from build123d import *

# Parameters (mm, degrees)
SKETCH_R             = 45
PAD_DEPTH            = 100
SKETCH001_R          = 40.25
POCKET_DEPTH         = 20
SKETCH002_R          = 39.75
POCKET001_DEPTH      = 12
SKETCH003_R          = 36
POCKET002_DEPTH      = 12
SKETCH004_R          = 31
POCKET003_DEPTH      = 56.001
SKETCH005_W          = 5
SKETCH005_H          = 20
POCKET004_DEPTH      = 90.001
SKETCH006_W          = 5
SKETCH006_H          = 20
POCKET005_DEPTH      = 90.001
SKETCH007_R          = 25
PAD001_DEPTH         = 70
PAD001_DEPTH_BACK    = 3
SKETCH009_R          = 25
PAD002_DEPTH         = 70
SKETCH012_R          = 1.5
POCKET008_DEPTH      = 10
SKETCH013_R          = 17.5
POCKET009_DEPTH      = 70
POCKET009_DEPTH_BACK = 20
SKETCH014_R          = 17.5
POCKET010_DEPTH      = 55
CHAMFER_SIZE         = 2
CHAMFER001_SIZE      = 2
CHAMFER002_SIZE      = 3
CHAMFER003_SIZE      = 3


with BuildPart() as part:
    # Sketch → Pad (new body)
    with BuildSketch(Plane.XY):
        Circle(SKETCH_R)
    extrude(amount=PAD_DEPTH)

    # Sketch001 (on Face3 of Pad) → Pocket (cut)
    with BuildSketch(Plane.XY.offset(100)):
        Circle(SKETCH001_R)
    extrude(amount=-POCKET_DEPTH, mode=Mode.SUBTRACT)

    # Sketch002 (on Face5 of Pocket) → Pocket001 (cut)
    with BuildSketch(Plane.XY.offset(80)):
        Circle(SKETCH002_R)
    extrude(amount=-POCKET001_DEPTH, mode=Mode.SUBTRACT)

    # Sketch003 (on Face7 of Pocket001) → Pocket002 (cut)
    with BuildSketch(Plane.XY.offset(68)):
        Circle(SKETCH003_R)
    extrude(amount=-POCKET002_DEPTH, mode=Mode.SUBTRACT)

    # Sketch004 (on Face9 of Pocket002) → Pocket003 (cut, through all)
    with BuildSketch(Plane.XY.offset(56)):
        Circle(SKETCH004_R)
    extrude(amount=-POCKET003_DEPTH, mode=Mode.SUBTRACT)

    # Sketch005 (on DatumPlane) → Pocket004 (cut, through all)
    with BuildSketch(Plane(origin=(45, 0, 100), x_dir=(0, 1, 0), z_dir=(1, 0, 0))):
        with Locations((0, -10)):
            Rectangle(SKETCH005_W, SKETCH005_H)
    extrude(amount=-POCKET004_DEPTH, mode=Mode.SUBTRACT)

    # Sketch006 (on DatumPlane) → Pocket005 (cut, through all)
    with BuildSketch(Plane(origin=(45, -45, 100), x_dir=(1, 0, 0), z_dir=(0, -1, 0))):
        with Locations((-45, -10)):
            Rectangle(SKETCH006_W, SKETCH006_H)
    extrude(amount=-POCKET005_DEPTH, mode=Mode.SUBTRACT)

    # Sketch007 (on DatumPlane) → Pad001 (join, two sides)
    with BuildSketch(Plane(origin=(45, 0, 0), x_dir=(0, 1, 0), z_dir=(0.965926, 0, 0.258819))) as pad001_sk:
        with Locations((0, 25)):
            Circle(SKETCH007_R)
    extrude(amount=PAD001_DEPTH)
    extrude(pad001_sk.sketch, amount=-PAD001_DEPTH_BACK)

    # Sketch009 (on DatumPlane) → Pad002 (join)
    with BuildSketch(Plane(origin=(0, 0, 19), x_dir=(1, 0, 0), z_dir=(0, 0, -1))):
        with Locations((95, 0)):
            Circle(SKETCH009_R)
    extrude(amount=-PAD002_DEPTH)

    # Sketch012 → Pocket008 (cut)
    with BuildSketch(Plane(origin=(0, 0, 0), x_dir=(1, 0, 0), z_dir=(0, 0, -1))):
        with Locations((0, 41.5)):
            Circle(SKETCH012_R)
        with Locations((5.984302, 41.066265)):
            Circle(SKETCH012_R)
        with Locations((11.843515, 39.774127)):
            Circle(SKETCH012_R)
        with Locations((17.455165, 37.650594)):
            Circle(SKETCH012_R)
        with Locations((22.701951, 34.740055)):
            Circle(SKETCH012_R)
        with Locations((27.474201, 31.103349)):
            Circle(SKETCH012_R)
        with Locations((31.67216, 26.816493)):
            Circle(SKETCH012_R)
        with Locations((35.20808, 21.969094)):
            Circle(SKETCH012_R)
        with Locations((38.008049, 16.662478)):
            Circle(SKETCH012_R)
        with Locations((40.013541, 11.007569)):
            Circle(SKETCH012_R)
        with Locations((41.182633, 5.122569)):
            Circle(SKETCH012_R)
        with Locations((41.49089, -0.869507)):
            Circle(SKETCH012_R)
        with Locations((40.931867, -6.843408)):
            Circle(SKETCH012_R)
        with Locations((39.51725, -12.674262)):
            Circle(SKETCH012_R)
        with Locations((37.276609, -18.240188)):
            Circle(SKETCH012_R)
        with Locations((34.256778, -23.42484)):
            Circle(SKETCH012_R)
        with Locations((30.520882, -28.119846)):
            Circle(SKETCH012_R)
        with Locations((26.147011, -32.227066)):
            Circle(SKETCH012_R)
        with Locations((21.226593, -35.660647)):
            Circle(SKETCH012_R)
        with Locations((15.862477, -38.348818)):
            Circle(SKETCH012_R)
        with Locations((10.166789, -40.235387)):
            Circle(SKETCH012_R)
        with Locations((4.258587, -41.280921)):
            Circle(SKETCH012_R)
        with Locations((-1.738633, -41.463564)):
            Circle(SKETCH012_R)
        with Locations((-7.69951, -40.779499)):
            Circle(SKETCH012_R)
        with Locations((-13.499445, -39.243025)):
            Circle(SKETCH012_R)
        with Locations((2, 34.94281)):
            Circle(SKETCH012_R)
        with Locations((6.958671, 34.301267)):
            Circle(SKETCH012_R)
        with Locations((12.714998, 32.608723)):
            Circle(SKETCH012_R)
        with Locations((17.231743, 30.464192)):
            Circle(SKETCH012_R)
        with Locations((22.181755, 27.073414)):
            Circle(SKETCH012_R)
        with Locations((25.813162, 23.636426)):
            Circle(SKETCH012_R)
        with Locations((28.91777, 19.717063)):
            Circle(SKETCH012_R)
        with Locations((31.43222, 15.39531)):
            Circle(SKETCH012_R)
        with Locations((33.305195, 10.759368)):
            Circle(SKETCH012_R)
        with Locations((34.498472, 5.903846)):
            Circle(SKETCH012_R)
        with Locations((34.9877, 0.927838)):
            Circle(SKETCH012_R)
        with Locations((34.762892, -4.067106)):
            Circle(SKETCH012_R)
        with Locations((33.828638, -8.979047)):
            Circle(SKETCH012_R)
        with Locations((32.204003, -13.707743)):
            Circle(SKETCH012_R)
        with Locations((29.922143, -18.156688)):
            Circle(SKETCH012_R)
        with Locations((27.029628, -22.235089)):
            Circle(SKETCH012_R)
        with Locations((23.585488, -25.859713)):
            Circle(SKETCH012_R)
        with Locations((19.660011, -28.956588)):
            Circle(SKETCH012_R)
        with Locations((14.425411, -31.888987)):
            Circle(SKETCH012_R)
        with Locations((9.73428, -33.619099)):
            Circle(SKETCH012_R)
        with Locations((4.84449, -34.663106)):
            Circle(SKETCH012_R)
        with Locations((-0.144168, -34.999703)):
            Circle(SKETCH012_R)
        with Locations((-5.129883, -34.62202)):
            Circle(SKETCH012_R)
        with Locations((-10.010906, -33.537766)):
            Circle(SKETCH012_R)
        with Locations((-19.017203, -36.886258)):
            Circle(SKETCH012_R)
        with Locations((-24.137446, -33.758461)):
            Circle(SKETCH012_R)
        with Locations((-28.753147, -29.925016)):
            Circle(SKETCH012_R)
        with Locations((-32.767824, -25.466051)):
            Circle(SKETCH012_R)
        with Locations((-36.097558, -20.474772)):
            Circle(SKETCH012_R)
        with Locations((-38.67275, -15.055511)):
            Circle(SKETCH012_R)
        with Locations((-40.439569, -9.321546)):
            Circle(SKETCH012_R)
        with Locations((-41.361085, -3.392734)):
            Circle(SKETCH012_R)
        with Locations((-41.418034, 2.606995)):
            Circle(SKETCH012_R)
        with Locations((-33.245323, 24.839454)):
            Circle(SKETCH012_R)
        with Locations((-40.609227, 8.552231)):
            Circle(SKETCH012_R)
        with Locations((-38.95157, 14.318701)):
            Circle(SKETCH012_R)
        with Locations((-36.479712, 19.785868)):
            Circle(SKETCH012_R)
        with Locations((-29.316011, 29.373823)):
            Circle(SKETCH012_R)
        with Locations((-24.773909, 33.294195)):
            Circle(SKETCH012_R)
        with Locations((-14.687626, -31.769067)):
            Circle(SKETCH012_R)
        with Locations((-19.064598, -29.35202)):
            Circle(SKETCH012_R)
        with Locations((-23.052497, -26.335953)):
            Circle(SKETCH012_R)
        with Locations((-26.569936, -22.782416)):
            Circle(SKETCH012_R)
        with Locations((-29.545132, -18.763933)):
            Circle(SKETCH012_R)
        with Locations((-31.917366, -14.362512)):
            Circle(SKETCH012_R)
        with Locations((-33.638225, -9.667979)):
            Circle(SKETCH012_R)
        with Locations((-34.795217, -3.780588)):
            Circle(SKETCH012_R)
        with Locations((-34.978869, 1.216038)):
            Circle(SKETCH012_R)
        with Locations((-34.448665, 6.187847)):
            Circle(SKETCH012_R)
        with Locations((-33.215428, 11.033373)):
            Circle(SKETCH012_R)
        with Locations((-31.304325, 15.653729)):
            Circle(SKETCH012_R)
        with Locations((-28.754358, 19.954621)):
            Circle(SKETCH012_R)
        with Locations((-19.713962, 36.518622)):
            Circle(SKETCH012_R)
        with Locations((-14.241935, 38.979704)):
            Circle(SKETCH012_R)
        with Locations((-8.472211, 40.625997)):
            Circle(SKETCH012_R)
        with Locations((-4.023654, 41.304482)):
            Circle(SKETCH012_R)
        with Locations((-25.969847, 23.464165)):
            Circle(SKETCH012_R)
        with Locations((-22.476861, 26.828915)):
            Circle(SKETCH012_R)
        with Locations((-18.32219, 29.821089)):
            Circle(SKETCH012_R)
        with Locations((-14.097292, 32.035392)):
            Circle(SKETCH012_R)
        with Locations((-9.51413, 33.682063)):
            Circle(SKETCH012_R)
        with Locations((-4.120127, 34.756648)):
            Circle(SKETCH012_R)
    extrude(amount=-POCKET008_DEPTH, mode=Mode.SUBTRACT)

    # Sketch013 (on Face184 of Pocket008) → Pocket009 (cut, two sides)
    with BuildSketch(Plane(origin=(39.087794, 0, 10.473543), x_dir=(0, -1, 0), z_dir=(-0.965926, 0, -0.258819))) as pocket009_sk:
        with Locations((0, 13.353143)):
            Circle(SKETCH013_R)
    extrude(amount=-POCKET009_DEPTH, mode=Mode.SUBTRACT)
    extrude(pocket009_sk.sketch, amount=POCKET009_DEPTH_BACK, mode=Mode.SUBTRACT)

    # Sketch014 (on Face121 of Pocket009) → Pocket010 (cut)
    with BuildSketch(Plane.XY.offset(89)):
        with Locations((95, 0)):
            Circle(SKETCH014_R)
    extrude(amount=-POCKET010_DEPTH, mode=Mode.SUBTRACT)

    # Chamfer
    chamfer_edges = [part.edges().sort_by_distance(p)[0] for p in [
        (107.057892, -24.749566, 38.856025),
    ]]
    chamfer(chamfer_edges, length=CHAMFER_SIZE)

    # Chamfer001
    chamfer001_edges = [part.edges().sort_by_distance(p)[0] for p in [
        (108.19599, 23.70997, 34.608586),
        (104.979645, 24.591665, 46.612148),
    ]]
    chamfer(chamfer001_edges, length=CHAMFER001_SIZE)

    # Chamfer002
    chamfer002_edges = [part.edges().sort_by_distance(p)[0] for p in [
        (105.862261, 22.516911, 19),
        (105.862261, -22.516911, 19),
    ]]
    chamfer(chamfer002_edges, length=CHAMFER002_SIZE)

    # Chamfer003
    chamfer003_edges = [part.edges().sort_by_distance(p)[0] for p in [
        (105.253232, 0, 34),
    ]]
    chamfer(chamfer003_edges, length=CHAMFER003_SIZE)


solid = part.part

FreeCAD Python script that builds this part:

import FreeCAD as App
import Part
import Sketcher
from FreeCAD import Vector


def edges_at(feature, points):
    """Names of the edges that pass closest to the given points."""
    edges = feature.Shape.Edges
    near = lambda p: min(range(len(edges)), key=lambda i: edges[i].distToShape(Part.Vertex(*p))[0])
    return sorted({f"Edge{near(p) + 1}" for p in points})


def add_polygon(sketch, points):
    """Adds a closed chain of lines whose ends are joined by coincident constraints."""
    first, n = sketch.GeometryCount, len(points)
    for a, b in zip(points, points[1:] + points[:1]):
        sketch.addGeometry(Part.LineSegment(App.Vector(*a, 0), App.Vector(*b, 0)), False)
    for i in range(n):
        sketch.addConstraint(Sketcher.Constraint("Coincident", first + i, 2, first + (i + 1) % n, 1))

doc = App.newDocument("Part")
body = doc.addObject("PartDesign::Body", "Body")

# Sketch on XY plane
sketch1 = doc.addObject("Sketcher::SketchObject", "Sketch")
body.addObject(sketch1)
sketch1.AttachmentSupport = (doc.XY_Plane, [""])
sketch1.MapMode = "FlatFace"
sketch1.addGeometry(Part.Circle(Vector(0, 0, 0), Vector(0, 0, 1), 45), False)
sketch1.addConstraint(Sketcher.Constraint("Coincident", 0, 3, -1, 1))
sketch1.addConstraint(Sketcher.Constraint("Diameter", 0, 90.0))
pad1 = doc.addObject("PartDesign::Pad", "Pad")
body.addObject(pad1)
pad1.Profile = sketch1
pad1.Length = 100

# Sketch on XY plane
sketch2 = doc.addObject("Sketcher::SketchObject", "Sketch001")
body.addObject(sketch2)
sketch2.AttachmentSupport = (doc.XY_Plane, [""])
sketch2.MapMode = "FlatFace"
sketch2.AttachmentOffset = App.Placement(Vector(0, 0, 100), App.Rotation())
sketch2.addGeometry(Part.Circle(Vector(0, 0, 0), Vector(0, 0, 1), 40), False)
sketch2.addConstraint(Sketcher.Constraint("Coincident", 0, 3, -1, 1))
sketch2.addConstraint(Sketcher.Constraint("Diameter", 0, 80.5))
pocket1 = doc.addObject("PartDesign::Pocket", "Pocket")
body.addObject(pocket1)
pocket1.Profile = sketch2
pocket1.Length = 20

# Sketch on XY plane
sketch3 = doc.addObject("Sketcher::SketchObject", "Sketch002")
body.addObject(sketch3)
sketch3.AttachmentSupport = (doc.XY_Plane, [""])
sketch3.MapMode = "FlatFace"
sketch3.AttachmentOffset = App.Placement(Vector(0, 0, 80), App.Rotation())
sketch3.addGeometry(Part.Circle(Vector(0, 0, 0), Vector(0, 0, 1), 40), False)
sketch3.addConstraint(Sketcher.Constraint("Coincident", 0, 3, -1, 1))
sketch3.addConstraint(Sketcher.Constraint("Diameter", 0, 79.5))
pocket2 = doc.addObject("PartDesign::Pocket", "Pocket001")
body.addObject(pocket2)
pocket2.Profile = sketch3
pocket2.Length = 12

# Sketch on XY plane
sketch4 = doc.addObject("Sketcher::SketchObject", "Sketch003")
body.addObject(sketch4)
sketch4.AttachmentSupport = (doc.XY_Plane, [""])
sketch4.MapMode = "FlatFace"
sketch4.AttachmentOffset = App.Placement(Vector(0, 0, 68), App.Rotation())
sketch4.addGeometry(Part.Circle(Vector(0, 0, 0), Vector(0, 0, 1), 36), False)
sketch4.addConstraint(Sketcher.Constraint("Coincident", 0, 3, -1, 1))
sketch4.addConstraint(Sketcher.Constraint("Diameter", 0, 72.0))
pocket3 = doc.addObject("PartDesign::Pocket", "Pocket002")
body.addObject(pocket3)
pocket3.Profile = sketch4
pocket3.Length = 12

# Sketch on XY plane
sketch5 = doc.addObject("Sketcher::SketchObject", "Sketch004")
body.addObject(sketch5)
sketch5.AttachmentSupport = (doc.XY_Plane, [""])
sketch5.MapMode = "FlatFace"
sketch5.AttachmentOffset = App.Placement(Vector(0, 0, 56), App.Rotation())
sketch5.addGeometry(Part.Circle(Vector(0, 0, 0), Vector(0, 0, 1), 31), False)
sketch5.addConstraint(Sketcher.Constraint("Coincident", 0, 3, -1, 1))
sketch5.addConstraint(Sketcher.Constraint("Diameter", 0, 62.0))
pocket4 = doc.addObject("PartDesign::Pocket", "Pocket003")
body.addObject(pocket4)
pocket4.Profile = sketch5
pocket4.Type = "ThroughAll"

# Sketch on YZ plane
sketch6 = doc.addObject("Sketcher::SketchObject", "Sketch005")
body.addObject(sketch6)
sketch6.AttachmentSupport = (doc.YZ_Plane, [""])
sketch6.MapMode = "FlatFace"
sketch6.AttachmentOffset = App.Placement(Vector(0, 0, 45), App.Rotation())
add_polygon(sketch6, [(-2, 100), (-2, 80), (2, 80), (2, 100)])  # lines 0-3
sketch6.addConstraint(Sketcher.Constraint("Vertical", 0))
sketch6.addConstraint(Sketcher.Constraint("Horizontal", 1))
sketch6.addConstraint(Sketcher.Constraint("Vertical", 2))
sketch6.addConstraint(Sketcher.Constraint("Horizontal", 3))
sketch6.addConstraint(Sketcher.Constraint("DistanceX", 1, 1, 1, 2, 5.0))
sketch6.addConstraint(Sketcher.Constraint("DistanceY", 0, 2, 0, 1, 20.0))
sketch6.addConstraint(Sketcher.Constraint("DistanceY", -1, 1, 0, 2, 80.0))
sketch6.addConstraint(Sketcher.Constraint("DistanceX", 0, 2, -1, 1, 2.5))
pocket5 = doc.addObject("PartDesign::Pocket", "Pocket004")
body.addObject(pocket5)
pocket5.Profile = sketch6
pocket5.Type = "ThroughAll"

# Sketch on XZ plane
sketch7 = doc.addObject("Sketcher::SketchObject", "Sketch006")
body.addObject(sketch7)
sketch7.AttachmentSupport = (doc.XZ_Plane, [""])
sketch7.MapMode = "FlatFace"
sketch7.AttachmentOffset = App.Placement(Vector(0, 0, 45), App.Rotation())
add_polygon(sketch7, [(-2, 100), (-2, 80), (2, 80), (2, 100)])  # lines 0-3
sketch7.addConstraint(Sketcher.Constraint("Vertical", 0))
sketch7.addConstraint(Sketcher.Constraint("Horizontal", 1))
sketch7.addConstraint(Sketcher.Constraint("Vertical", 2))
sketch7.addConstraint(Sketcher.Constraint("Horizontal", 3))
sketch7.addConstraint(Sketcher.Constraint("DistanceX", 1, 1, 1, 2, 5.0))
sketch7.addConstraint(Sketcher.Constraint("DistanceY", 0, 2, 0, 1, 20.0))
sketch7.addConstraint(Sketcher.Constraint("DistanceY", -1, 1, 0, 2, 80.0))
sketch7.addConstraint(Sketcher.Constraint("DistanceX", 0, 2, -1, 1, 2.5))
pocket6 = doc.addObject("PartDesign::Pocket", "Pocket005")
body.addObject(pocket6)
pocket6.Profile = sketch7
pocket6.Type = "ThroughAll"

# Sketch on an angled plane
sketch8 = doc.addObject("Sketcher::SketchObject", "Sketch007")
body.addObject(sketch8)
sketch8.Placement = App.Placement(Vector(45, 0, 0), App.Rotation(Vector(0, 1, 0), Vector(-0.25881896, 0, 0.965925849), Vector(0.965925849, 0, 0.25881896), "ZXY"))
sketch8.addGeometry(Part.Circle(Vector(0, 25, 0), Vector(0, 0, 1), 25), False)
sketch8.addConstraint(Sketcher.Constraint("PointOnObject", 0, 3, -2))
sketch8.addConstraint(Sketcher.Constraint("Diameter", 0, 50.0))
sketch8.addConstraint(Sketcher.Constraint("DistanceY", -1, 1, 0, 3, 25.0))
pad2 = doc.addObject("PartDesign::Pad", "Pad001")
body.addObject(pad2)
pad2.Profile = sketch8
pad2.Type = "TwoLengths"
pad2.Length = 70
pad2.Length2 = 3

# Sketch on XY plane
sketch9 = doc.addObject("Sketcher::SketchObject", "Sketch008")
body.addObject(sketch9)
sketch9.AttachmentSupport = (doc.XY_Plane, [""])
sketch9.MapMode = "FlatFace"
sketch9.AttachmentOffset = App.Placement(Vector(0, 0, 19), App.Rotation())
sketch9.addGeometry(Part.Circle(Vector(95, 0, 0), Vector(0, 0, 1), 25), False)
sketch9.addConstraint(Sketcher.Constraint("PointOnObject", 0, 3, -1))
sketch9.addConstraint(Sketcher.Constraint("Diameter", 0, 50.0))
sketch9.addConstraint(Sketcher.Constraint("DistanceX", -1, 1, 0, 3, 95.0))
pad3 = doc.addObject("PartDesign::Pad", "Pad002")
body.addObject(pad3)
pad3.Profile = sketch9
pad3.Length = 70

# Sketch on XY plane
sketch10 = doc.addObject("Sketcher::SketchObject", "Sketch009")
body.addObject(sketch10)
sketch10.AttachmentSupport = (doc.XY_Plane, [""])
sketch10.MapMode = "FlatFace"
sketch10.addGeometry(Part.Circle(Vector(0, -41.5, 0), Vector(0, 0, 1), 1.5), False)
sketch10.addGeometry(Part.Circle(Vector(6, -41.1, 0), Vector(0, 0, 1), 1.5), False)
sketch10.addGeometry(Part.Circle(Vector(11.8, -39.8, 0), Vector(0, 0, 1), 1.5), False)
sketch10.addGeometry(Part.Circle(Vector(17.5, -37.7, 0), Vector(0, 0, 1), 1.5), False)
sketch10.addGeometry(Part.Circle(Vector(22.7, -34.7, 0), Vector(0, 0, 1), 1.5), False)
sketch10.addGeometry(Part.Circle(Vector(27.5, -31.1, 0), Vector(0, 0, 1), 1.5), False)
sketch10.addGeometry(Part.Circle(Vector(31.7, -26.8, 0), Vector(0, 0, 1), 1.5), False)
sketch10.addGeometry(Part.Circle(Vector(35.2, -22, 0), Vector(0, 0, 1), 1.5), False)
sketch10.addGeometry(Part.Circle(Vector(38, -16.7, 0), Vector(0, 0, 1), 1.5), False)
sketch10.addGeometry(Part.Circle(Vector(40, -11, 0), Vector(0, 0, 1), 1.5), False)
sketch10.addGeometry(Part.Circle(Vector(41.2, -5.1, 0), Vector(0, 0, 1), 1.5), False)
sketch10.addGeometry(Part.Circle(Vector(41.5, 0.9, 0), Vector(0, 0, 1), 1.5), False)
sketch10.addGeometry(Part.Circle(Vector(40.9, 6.8, 0), Vector(0, 0, 1), 1.5), False)
sketch10.addGeometry(Part.Circle(Vector(39.5, 12.7, 0), Vector(0, 0, 1), 1.5), False)
sketch10.addGeometry(Part.Circle(Vector(37.3, 18.2, 0), Vector(0, 0, 1), 1.5), False)
sketch10.addGeometry(Part.Circle(Vector(34.3, 23.4, 0), Vector(0, 0, 1), 1.5), False)
sketch10.addGeometry(Part.Circle(Vector(30.5, 28.1, 0), Vector(0, 0, 1), 1.5), False)
sketch10.addGeometry(Part.Circle(Vector(26.1, 32.2, 0), Vector(0, 0, 1), 1.5), False)
sketch10.addGeometry(Part.Circle(Vector(21.2, 35.7, 0), Vector(0, 0, 1), 1.5), False)
sketch10.addGeometry(Part.Circle(Vector(15.9, 38.3, 0), Vector(0, 0, 1), 1.5), False)
sketch10.addGeometry(Part.Circle(Vector(10.2, 40.2, 0), Vector(0, 0, 1), 1.5), False)
sketch10.addGeometry(Part.Circle(Vector(4.3, 41.3, 0), Vector(0, 0, 1), 1.5), False)
sketch10.addGeometry(Part.Circle(Vector(-1.7, 41.5, 0), Vector(0, 0, 1), 1.5), False)
sketch10.addGeometry(Part.Circle(Vector(-7.7, 40.8, 0), Vector(0, 0, 1), 1.5), False)
sketch10.addGeometry(Part.Circle(Vector(-13.5, 39.2, 0), Vector(0, 0, 1), 1.5), False)
sketch10.addGeometry(Part.Circle(Vector(2, -34.9, 0), Vector(0, 0, 1), 1.5), False)
sketch10.addGeometry(Part.Circle(Vector(7, -34.3, 0), Vector(0, 0, 1), 1.5), False)
sketch10.addGeometry(Part.Circle(Vector(12.7, -32.6, 0), Vector(0, 0, 1), 1.5), False)
sketch10.addGeometry(Part.Circle(Vector(17.2, -30.5, 0), Vector(0, 0, 1), 1.5), False)
sketch10.addGeometry(Part.Circle(Vector(22.2, -27.1, 0), Vector(0, 0, 1), 1.5), False)
sketch10.addGeometry(Part.Circle(Vector(25.8, -23.6, 0), Vector(0, 0, 1), 1.5), False)
sketch10.addGeometry(Part.Circle(Vector(28.9, -19.7, 0), Vector(0, 0, 1), 1.5), False)
sketch10.addGeometry(Part.Circle(Vector(31.4, -15.4, 0), Vector(0, 0, 1), 1.5), False)
sketch10.addGeometry(Part.Circle(Vector(33.3, -10.8, 0), Vector(0, 0, 1), 1.5), False)
sketch10.addGeometry(Part.Circle(Vector(34.5, -5.9, 0), Vector(0, 0, 1), 1.5), False)
sketch10.addGeometry(Part.Circle(Vector(35, -0.9, 0), Vector(0, 0, 1), 1.5), False)
sketch10.addGeometry(Part.Circle(Vector(34.8, 4.1, 0), Vector(0, 0, 1), 1.5), False)
sketch10.addGeometry(Part.Circle(Vector(33.8, 9, 0), Vector(0, 0, 1), 1.5), False)
sketch10.addGeometry(Part.Circle(Vector(32.2, 13.7, 0), Vector(0, 0, 1), 1.5), False)
sketch10.addGeometry(Part.Circle(Vector(29.9, 18.2, 0), Vector(0, 0, 1), 1.5), False)
sketch10.addGeometry(Part.Circle(Vector(27, 22.2, 0), Vector(0, 0, 1), 1.5), False)
sketch10.addGeometry(Part.Circle(Vector(23.6, 25.9, 0), Vector(0, 0, 1), 1.5), False)
sketch10.addGeometry(Part.Circle(Vector(19.7, 29, 0), Vector(0, 0, 1), 1.5), False)
sketch10.addGeometry(Part.Circle(Vector(14.4, 31.9, 0), Vector(0, 0, 1), 1.5), False)
sketch10.addGeometry(Part.Circle(Vector(9.7, 33.6, 0), Vector(0, 0, 1), 1.5), False)
sketch10.addGeometry(Part.Circle(Vector(4.8, 34.7, 0), Vector(0, 0, 1), 1.5), False)
sketch10.addGeometry(Part.Circle(Vector(-0.1, 35, 0), Vector(0, 0, 1), 1.5), False)
sketch10.addGeometry(Part.Circle(Vector(-5.1, 34.6, 0), Vector(0, 0, 1), 1.5), False)
sketch10.addGeometry(Part.Circle(Vector(-10, 33.5, 0), Vector(0, 0, 1), 1.5), False)
sketch10.addGeometry(Part.Circle(Vector(-19, 36.9, 0), Vector(0, 0, 1), 1.5), False)
sketch10.addGeometry(Part.Circle(Vector(-24.1, 33.8, 0), Vector(0, 0, 1), 1.5), False)
sketch10.addGeometry(Part.Circle(Vector(-28.8, 29.9, 0), Vector(0, 0, 1), 1.5), False)
sketch10.addGeometry(Part.Circle(Vector(-32.8, 25.5, 0), Vector(0, 0, 1), 1.5), False)
sketch10.addGeometry(Part.Circle(Vector(-36.1, 20.5, 0), Vector(0, 0, 1), 1.5), False)
sketch10.addGeometry(Part.Circle(Vector(-38.7, 15.1, 0), Vector(0, 0, 1), 1.5), False)
sketch10.addGeometry(Part.Circle(Vector(-40.4, 9.3, 0), Vector(0, 0, 1), 1.5), False)
sketch10.addGeometry(Part.Circle(Vector(-41.4, 3.4, 0), Vector(0, 0, 1), 1.5), False)
sketch10.addGeometry(Part.Circle(Vector(-41.4, -2.6, 0), Vector(0, 0, 1), 1.5), False)
sketch10.addGeometry(Part.Circle(Vector(-33.2, -24.8, 0), Vector(0, 0, 1), 1.5), False)
sketch10.addGeometry(Part.Circle(Vector(-40.6, -8.6, 0), Vector(0, 0, 1), 1.5), False)
sketch10.addGeometry(Part.Circle(Vector(-39, -14.3, 0), Vector(0, 0, 1), 1.5), False)
sketch10.addGeometry(Part.Circle(Vector(-36.5, -19.8, 0), Vector(0, 0, 1), 1.5), False)
sketch10.addGeometry(Part.Circle(Vector(-29.3, -29.4, 0), Vector(0, 0, 1), 1.5), False)
sketch10.addGeometry(Part.Circle(Vector(-24.8, -33.3, 0), Vector(0, 0, 1), 1.5), False)
sketch10.addGeometry(Part.Circle(Vector(-14.7, 31.8, 0), Vector(0, 0, 1), 1.5), False)
sketch10.addGeometry(Part.Circle(Vector(-19.1, 29.4, 0), Vector(0, 0, 1), 1.5), False)
sketch10.addGeometry(Part.Circle(Vector(-23.1, 26.3, 0), Vector(0, 0, 1), 1.5), False)
sketch10.addGeometry(Part.Circle(Vector(-26.6, 22.8, 0), Vector(0, 0, 1), 1.5), False)
sketch10.addGeometry(Part.Circle(Vector(-29.5, 18.8, 0), Vector(0, 0, 1), 1.5), False)
sketch10.addGeometry(Part.Circle(Vector(-31.9, 14.4, 0), Vector(0, 0, 1), 1.5), False)
sketch10.addGeometry(Part.Circle(Vector(-33.6, 9.7, 0), Vector(0, 0, 1), 1.5), False)
sketch10.addGeometry(Part.Circle(Vector(-34.8, 3.8, 0), Vector(0, 0, 1), 1.5), False)
sketch10.addGeometry(Part.Circle(Vector(-35, -1.2, 0), Vector(0, 0, 1), 1.5), False)
sketch10.addGeometry(Part.Circle(Vector(-34.4, -6.2, 0), Vector(0, 0, 1), 1.5), False)
sketch10.addGeometry(Part.Circle(Vector(-33.2, -11, 0), Vector(0, 0, 1), 1.5), False)
sketch10.addGeometry(Part.Circle(Vector(-31.3, -15.7, 0), Vector(0, 0, 1), 1.5), False)
sketch10.addGeometry(Part.Circle(Vector(-28.8, -20, 0), Vector(0, 0, 1), 1.5), False)
sketch10.addGeometry(Part.Circle(Vector(-19.7, -36.5, 0), Vector(0, 0, 1), 1.5), False)
sketch10.addGeometry(Part.Circle(Vector(-14.2, -39, 0), Vector(0, 0, 1), 1.5), False)
sketch10.addGeometry(Part.Circle(Vector(-8.5, -40.6, 0), Vector(0, 0, 1), 1.5), False)
sketch10.addGeometry(Part.Circle(Vector(-4, -41.3, 0), Vector(0, 0, 1), 1.5), False)
sketch10.addGeometry(Part.Circle(Vector(-26, -23.5, 0), Vector(0, 0, 1), 1.5), False)
sketch10.addGeometry(Part.Circle(Vector(-22.5, -26.8, 0), Vector(0, 0, 1), 1.5), False)
sketch10.addGeometry(Part.Circle(Vector(-18.3, -29.8, 0), Vector(0, 0, 1), 1.5), False)
sketch10.addGeometry(Part.Circle(Vector(-14.1, -32, 0), Vector(0, 0, 1), 1.5), False)
sketch10.addGeometry(Part.Circle(Vector(-9.5, -33.7, 0), Vector(0, 0, 1), 1.5), False)
sketch10.addGeometry(Part.Circle(Vector(-4.1, -34.8, 0), Vector(0, 0, 1), 1.5), False)
sketch10.addConstraint(Sketcher.Constraint("Equal", 0, 1))
sketch10.addConstraint(Sketcher.Constraint("Equal", 1, 2))
sketch10.addConstraint(Sketcher.Constraint("Equal", 2, 3))
sketch10.addConstraint(Sketcher.Constraint("Equal", 3, 4))
sketch10.addConstraint(Sketcher.Constraint("Equal", 4, 5))
sketch10.addConstraint(Sketcher.Constraint("Equal", 5, 6))
sketch10.addConstraint(Sketcher.Constraint("Equal", 6, 7))
sketch10.addConstraint(Sketcher.Constraint("Equal", 7, 8))
sketch10.addConstraint(Sketcher.Constraint("Equal", 8, 9))
sketch10.addConstraint(Sketcher.Constraint("Equal", 9, 10))
sketch10.addConstraint(Sketcher.Constraint("Equal", 10, 11))
sketch10.addConstraint(Sketcher.Constraint("Equal", 11, 12))
sketch10.addConstraint(Sketcher.Constraint("Equal", 12, 13))
sketch10.addConstraint(Sketcher.Constraint("Equal", 13, 14))
sketch10.addConstraint(Sketcher.Constraint("Equal", 14, 15))
sketch10.addConstraint(Sketcher.Constraint("Equal", 15, 16))
sketch10.addConstraint(Sketcher.Constraint("Equal", 16, 17))
sketch10.addConstraint(Sketcher.Constraint("Equal", 17, 18))
sketch10.addConstraint(Sketcher.Constraint("Equal", 18, 19))
sketch10.addConstraint(Sketcher.Constraint("Equal", 19, 20))
sketch10.addConstraint(Sketcher.Constraint("Equal", 20, 21))
sketch10.addConstraint(Sketcher.Constraint("Equal", 21, 22))
sketch10.addConstraint(Sketcher.Constraint("Equal", 22, 23))
sketch10.addConstraint(Sketcher.Constraint("Equal", 23, 24))
sketch10.addConstraint(Sketcher.Constraint("Equal", 24, 25))
sketch10.addConstraint(Sketcher.Constraint("Equal", 25, 26))
sketch10.addConstraint(Sketcher.Constraint("Equal", 26, 27))
sketch10.addConstraint(Sketcher.Constraint("Equal", 27, 28))
sketch10.addConstraint(Sketcher.Constraint("Equal", 28, 29))
sketch10.addConstraint(Sketcher.Constraint("Equal", 29, 30))
sketch10.addConstraint(Sketcher.Constraint("Equal", 30, 31))
sketch10.addConstraint(Sketcher.Constraint("Equal", 31, 32))
sketch10.addConstraint(Sketcher.Constraint("Equal", 32, 33))
sketch10.addConstraint(Sketcher.Constraint("Equal", 33, 34))
sketch10.addConstraint(Sketcher.Constraint("Equal", 34, 35))
sketch10.addConstraint(Sketcher.Constraint("Equal", 35, 36))
sketch10.addConstraint(Sketcher.Constraint("Equal", 36, 37))
sketch10.addConstraint(Sketcher.Constraint("Equal", 37, 38))
sketch10.addConstraint(Sketcher.Constraint("Equal", 38, 39))
sketch10.addConstraint(Sketcher.Constraint("Equal", 39, 40))
sketch10.addConstraint(Sketcher.Constraint("Equal", 40, 41))
sketch10.addConstraint(Sketcher.Constraint("Equal", 41, 42))
sketch10.addConstraint(Sketcher.Constraint("Equal", 42, 43))
sketch10.addConstraint(Sketcher.Constraint("Equal", 43, 44))
sketch10.addConstraint(Sketcher.Constraint("Equal", 44, 45))
sketch10.addConstraint(Sketcher.Constraint("Equal", 45, 46))
sketch10.addConstraint(Sketcher.Constraint("Equal", 46, 47))
sketch10.addConstraint(Sketcher.Constraint("Equal", 47, 48))
sketch10.addConstraint(Sketcher.Constraint("Equal", 48, 49))
sketch10.addConstraint(Sketcher.Constraint("Equal", 49, 50))
sketch10.addConstraint(Sketcher.Constraint("Equal", 50, 51))
sketch10.addConstraint(Sketcher.Constraint("Equal", 51, 52))
sketch10.addConstraint(Sketcher.Constraint("Equal", 52, 53))
sketch10.addConstraint(Sketcher.Constraint("Equal", 53, 54))
sketch10.addConstraint(Sketcher.Constraint("Equal", 54, 55))
sketch10.addConstraint(Sketcher.Constraint("Equal", 55, 56))
sketch10.addConstraint(Sketcher.Constraint("Equal", 56, 57))
sketch10.addConstraint(Sketcher.Constraint("Equal", 57, 58))
sketch10.addConstraint(Sketcher.Constraint("Equal", 58, 59))
sketch10.addConstraint(Sketcher.Constraint("Equal", 59, 60))
sketch10.addConstraint(Sketcher.Constraint("Equal", 60, 61))
sketch10.addConstraint(Sketcher.Constraint("Equal", 61, 62))
sketch10.addConstraint(Sketcher.Constraint("Equal", 62, 63))
sketch10.addConstraint(Sketcher.Constraint("Equal", 63, 64))
sketch10.addConstraint(Sketcher.Constraint("Equal", 64, 65))
sketch10.addConstraint(Sketcher.Constraint("Equal", 65, 66))
sketch10.addConstraint(Sketcher.Constraint("Equal", 66, 67))
sketch10.addConstraint(Sketcher.Constraint("Equal", 67, 68))
sketch10.addConstraint(Sketcher.Constraint("Equal", 68, 69))
sketch10.addConstraint(Sketcher.Constraint("Equal", 69, 70))
sketch10.addConstraint(Sketcher.Constraint("Equal", 70, 71))
sketch10.addConstraint(Sketcher.Constraint("Equal", 71, 72))
sketch10.addConstraint(Sketcher.Constraint("Equal", 72, 73))
sketch10.addConstraint(Sketcher.Constraint("Equal", 73, 74))
sketch10.addConstraint(Sketcher.Constraint("Equal", 74, 75))
sketch10.addConstraint(Sketcher.Constraint("Equal", 75, 76))
sketch10.addConstraint(Sketcher.Constraint("Equal", 76, 77))
sketch10.addConstraint(Sketcher.Constraint("Equal", 77, 78))
sketch10.addConstraint(Sketcher.Constraint("Equal", 78, 79))
sketch10.addConstraint(Sketcher.Constraint("Equal", 79, 80))
sketch10.addConstraint(Sketcher.Constraint("Equal", 80, 81))
sketch10.addConstraint(Sketcher.Constraint("Equal", 81, 82))
sketch10.addConstraint(Sketcher.Constraint("Equal", 82, 83))
sketch10.addConstraint(Sketcher.Constraint("Equal", 83, 84))
sketch10.addConstraint(Sketcher.Constraint("Equal", 84, 85))
sketch10.addConstraint(Sketcher.Constraint("Equal", 85, 86))
sketch10.addConstraint(Sketcher.Constraint("PointOnObject", 0, 3, -2))
sketch10.addConstraint(Sketcher.Constraint("Diameter", 0, 3.0))
sketch10.addConstraint(Sketcher.Constraint("DistanceX", -1, 1, 25, 3, 2.0))
sketch10.addConstraint(Sketcher.Constraint("DistanceY", 0, 3, -1, 1, 41.5))
sketch10.addConstraint(Sketcher.Constraint("DistanceX", -1, 1, 1, 3, 5.984302))
sketch10.addConstraint(Sketcher.Constraint("DistanceX", -1, 1, 5, 3, 27.474201))
sketch10.addConstraint(Sketcher.Constraint("DistanceY", -1, 1, 23, 3, 40.779499))
sketch10.addConstraint(Sketcher.Constraint("DistanceX", -1, 1, 35, 3, 34.9877))
sketch10.addConstraint(Sketcher.Constraint("DistanceY", -1, 1, 44, 3, 33.619099))
sketch10.addConstraint(Sketcher.Constraint("DistanceY", 60, 3, -1, 1, 14.318701))
sketch10.addConstraint(Sketcher.Constraint("DistanceX", 65, 3, -1, 1, 19.064598))
sketch10.addConstraint(Sketcher.Constraint("DistanceX", -1, 1, 4, 3, 22.701951))
sketch10.addConstraint(Sketcher.Constraint("DistanceY", 5, 3, -1, 1, 31.103349))
sketch10.addConstraint(Sketcher.Constraint("DistanceX", -1, 1, 6, 3, 31.67216))
sketch10.addConstraint(Sketcher.Constraint("DistanceX", -1, 1, 7, 3, 35.20808))
sketch10.addConstraint(Sketcher.Constraint("DistanceX", -1, 1, 8, 3, 38.008049))
sketch10.addConstraint(Sketcher.Constraint("DistanceY", 8, 3, -1, 1, 16.662478))
sketch10.addConstraint(Sketcher.Constraint("DistanceX", -1, 1, 9, 3, 40.013541))
sketch10.addConstraint(Sketcher.Constraint("DistanceY", 9, 3, -1, 1, 11.007569))
sketch10.addConstraint(Sketcher.Constraint("DistanceY", 10, 3, -1, 1, 5.122569))
sketch10.addConstraint(Sketcher.Constraint("DistanceX", -1, 1, 11, 3, 41.49089))
sketch10.addConstraint(Sketcher.Constraint("DistanceX", -1, 1, 13, 3, 39.51725))
sketch10.addConstraint(Sketcher.Constraint("DistanceX", -1, 1, 14, 3, 37.276609))
sketch10.addConstraint(Sketcher.Constraint("DistanceY", -1, 1, 14, 3, 18.240188))
sketch10.addConstraint(Sketcher.Constraint("DistanceY", -1, 1, 15, 3, 23.42484))
sketch10.addConstraint(Sketcher.Constraint("DistanceX", -1, 1, 17, 3, 26.147011))
sketch10.addConstraint(Sketcher.Constraint("DistanceX", -1, 1, 20, 3, 10.166789))
sketch10.addConstraint(Sketcher.Constraint("DistanceY", -1, 1, 21, 3, 41.280921))
sketch10.addConstraint(Sketcher.Constraint("DistanceX", 23, 3, -1, 1, 7.69951))
sketch10.addConstraint(Sketcher.Constraint("DistanceY", 25, 3, -1, 1, 34.94281))
sketch10.addConstraint(Sketcher.Constraint("DistanceX", -1, 1, 26, 3, 6.958671))
sketch10.addConstraint(Sketcher.Constraint("DistanceX", -1, 1, 30, 3, 25.813162))
sketch10.addConstraint(Sketcher.Constraint("DistanceX", -1, 1, 31, 3, 28.91777))
sketch10.addConstraint(Sketcher.Constraint("DistanceX", -1, 1, 32, 3, 31.43222))
sketch10.addConstraint(Sketcher.Constraint("DistanceY", 32, 3, -1, 1, 15.39531))
sketch10.addConstraint(Sketcher.Constraint("DistanceY", 35, 3, -1, 1, 0.927838))
sketch10.addConstraint(Sketcher.Constraint("DistanceY", -1, 1, 40, 3, 22.235089))
sketch10.addConstraint(Sketcher.Constraint("DistanceX", -1, 1, 41, 3, 23.585488))
sketch10.addConstraint(Sketcher.Constraint("DistanceX", -1, 1, 42, 3, 19.660011))
sketch10.addConstraint(Sketcher.Constraint("DistanceY", -1, 1, 42, 3, 28.956588))
sketch10.addConstraint(Sketcher.Constraint("DistanceX", -1, 1, 43, 3, 14.425411))
sketch10.addConstraint(Sketcher.Constraint("DistanceX", -1, 1, 44, 3, 9.73428))
sketch10.addConstraint(Sketcher.Constraint("DistanceX", -1, 1, 45, 3, 4.84449))
sketch10.addConstraint(Sketcher.Constraint("DistanceY", -1, 1, 47, 3, 34.62202))
sketch10.addConstraint(Sketcher.Constraint("DistanceY", -1, 1, 50, 3, 33.758461))
sketch10.addConstraint(Sketcher.Constraint("DistanceY", -1, 1, 52, 3, 25.466051))
sketch10.addConstraint(Sketcher.Constraint("DistanceX", 54, 3, -1, 1, 38.67275))
sketch10.addConstraint(Sketcher.Constraint("DistanceY", -1, 1, 54, 3, 15.055511))
sketch10.addConstraint(Sketcher.Constraint("DistanceX", 55, 3, -1, 1, 40.439569))
sketch10.addConstraint(Sketcher.Constraint("DistanceY", 59, 3, -1, 1, 8.552231))
sketch10.addConstraint(Sketcher.Constraint("DistanceX", 60, 3, -1, 1, 38.95157))
sketch10.addConstraint(Sketcher.Constraint("DistanceY", 61, 3, -1, 1, 19.785868))
sketch10.addConstraint(Sketcher.Constraint("DistanceX", 62, 3, -1, 1, 29.316011))
sketch10.addConstraint(Sketcher.Constraint("DistanceX", 63, 3, -1, 1, 24.773909))
sketch10.addConstraint(Sketcher.Constraint("DistanceY", -1, 1, 65, 3, 29.35202))
sketch10.addConstraint(Sketcher.Constraint("DistanceX", 68, 3, -1, 1, 29.545132))
sketch10.addConstraint(Sketcher.Constraint("DistanceY", -1, 1, 70, 3, 9.667979))
sketch10.addConstraint(Sketcher.Constraint("DistanceX", 72, 3, -1, 1, 34.978869))
sketch10.addConstraint(Sketcher.Constraint("DistanceX", 74, 3, -1, 1, 33.215428))
sketch10.addConstraint(Sketcher.Constraint("DistanceY", 75, 3, -1, 1, 15.653729))
sketch10.addConstraint(Sketcher.Constraint("DistanceX", 76, 3, -1, 1, 28.754358))
sketch10.addConstraint(Sketcher.Constraint("DistanceY", 76, 3, -1, 1, 19.954621))
sketch10.addConstraint(Sketcher.Constraint("DistanceX", 77, 3, -1, 1, 19.713962))
sketch10.addConstraint(Sketcher.Constraint("DistanceX", 79, 3, -1, 1, 8.472211))
sketch10.addConstraint(Sketcher.Constraint("DistanceX", 82, 3, -1, 1, 22.476861))
sketch10.addConstraint(Sketcher.Constraint("DistanceX", 83, 3, -1, 1, 18.32219))
sketch10.addConstraint(Sketcher.Constraint("DistanceY", 83, 3, -1, 1, 29.821089))
sketch10.addConstraint(Sketcher.Constraint("DistanceX", 85, 3, -1, 1, 9.51413))
sketch10.addConstraint(Sketcher.Constraint("DistanceY", 1, 3, -1, 1, 41.066265))
sketch10.addConstraint(Sketcher.Constraint("DistanceX", -1, 1, 2, 3, 11.843515))
sketch10.addConstraint(Sketcher.Constraint("DistanceY", 2, 3, -1, 1, 39.774127))
sketch10.addConstraint(Sketcher.Constraint("DistanceX", -1, 1, 3, 3, 17.455165))
sketch10.addConstraint(Sketcher.Constraint("DistanceY", 3, 3, -1, 1, 37.650594))
sketch10.addConstraint(Sketcher.Constraint("DistanceY", 4, 3, -1, 1, 34.740055))
sketch10.addConstraint(Sketcher.Constraint("DistanceY", 6, 3, -1, 1, 26.816493))
sketch10.addConstraint(Sketcher.Constraint("DistanceY", 7, 3, -1, 1, 21.969094))
sketch10.addConstraint(Sketcher.Constraint("DistanceX", -1, 1, 10, 3, 41.182633))
sketch10.addConstraint(Sketcher.Constraint("DistanceY", -1, 1, 11, 3, 0.869507))
sketch10.addConstraint(Sketcher.Constraint("DistanceX", -1, 1, 12, 3, 40.931867))
sketch10.addConstraint(Sketcher.Constraint("DistanceY", -1, 1, 12, 3, 6.843408))
sketch10.addConstraint(Sketcher.Constraint("DistanceY", -1, 1, 13, 3, 12.674262))
sketch10.addConstraint(Sketcher.Constraint("DistanceX", -1, 1, 15, 3, 34.256778))
sketch10.addConstraint(Sketcher.Constraint("DistanceX", -1, 1, 16, 3, 30.520882))
sketch10.addConstraint(Sketcher.Constraint("DistanceY", -1, 1, 16, 3, 28.119846))
sketch10.addConstraint(Sketcher.Constraint("DistanceY", -1, 1, 17, 3, 32.227066))
sketch10.addConstraint(Sketcher.Constraint("DistanceX", -1, 1, 18, 3, 21.226593))
sketch10.addConstraint(Sketcher.Constraint("DistanceY", -1, 1, 18, 3, 35.660647))
sketch10.addConstraint(Sketcher.Constraint("DistanceX", -1, 1, 19, 3, 15.862477))
sketch10.addConstraint(Sketcher.Constraint("DistanceY", -1, 1, 19, 3, 38.348818))
sketch10.addConstraint(Sketcher.Constraint("DistanceY", -1, 1, 20, 3, 40.235387))
sketch10.addConstraint(Sketcher.Constraint("DistanceX", -1, 1, 21, 3, 4.258587))
sketch10.addConstraint(Sketcher.Constraint("DistanceX", 22, 3, -1, 1, 1.738633))
sketch10.addConstraint(Sketcher.Constraint("DistanceY", -1, 1, 22, 3, 41.463564))
sketch10.addConstraint(Sketcher.Constraint("DistanceX", 24, 3, -1, 1, 13.499445))
sketch10.addConstraint(Sketcher.Constraint("DistanceY", -1, 1, 24, 3, 39.243025))
sketch10.addConstraint(Sketcher.Constraint("DistanceY", 26, 3, -1, 1, 34.301267))
sketch10.addConstraint(Sketcher.Constraint("DistanceX", -1, 1, 27, 3, 12.714998))
sketch10.addConstraint(Sketcher.Constraint("DistanceY", 27, 3, -1, 1, 32.608723))
sketch10.addConstraint(Sketcher.Constraint("DistanceX", -1, 1, 28, 3, 17.231743))
sketch10.addConstraint(Sketcher.Constraint("DistanceY", 28, 3, -1, 1, 30.464192))
sketch10.addConstraint(Sketcher.Constraint("DistanceX", -1, 1, 29, 3, 22.181755))
sketch10.addConstraint(Sketcher.Constraint("DistanceY", 29, 3, -1, 1, 27.073414))
sketch10.addConstraint(Sketcher.Constraint("DistanceY", 30, 3, -1, 1, 23.636426))
sketch10.addConstraint(Sketcher.Constraint("DistanceY", 31, 3, -1, 1, 19.717063))
sketch10.addConstraint(Sketcher.Constraint("DistanceX", -1, 1, 33, 3, 33.305195))
sketch10.addConstraint(Sketcher.Constraint("DistanceY", 33, 3, -1, 1, 10.759368))
sketch10.addConstraint(Sketcher.Constraint("DistanceX", -1, 1, 34, 3, 34.498472))
sketch10.addConstraint(Sketcher.Constraint("DistanceY", 34, 3, -1, 1, 5.903846))
sketch10.addConstraint(Sketcher.Constraint("DistanceX", -1, 1, 36, 3, 34.762892))
sketch10.addConstraint(Sketcher.Constraint("DistanceY", -1, 1, 36, 3, 4.067106))
sketch10.addConstraint(Sketcher.Constraint("DistanceX", -1, 1, 37, 3, 33.828638))
sketch10.addConstraint(Sketcher.Constraint("DistanceY", -1, 1, 37, 3, 8.979047))
sketch10.addConstraint(Sketcher.Constraint("DistanceX", -1, 1, 38, 3, 32.204003))
sketch10.addConstraint(Sketcher.Constraint("DistanceY", -1, 1, 38, 3, 13.707743))
sketch10.addConstraint(Sketcher.Constraint("DistanceX", -1, 1, 39, 3, 29.922143))
sketch10.addConstraint(Sketcher.Constraint("DistanceY", -1, 1, 39, 3, 18.156688))
sketch10.addConstraint(Sketcher.Constraint("DistanceX", -1, 1, 40, 3, 27.029628))
sketch10.addConstraint(Sketcher.Constraint("DistanceY", -1, 1, 41, 3, 25.859713))
sketch10.addConstraint(Sketcher.Constraint("DistanceY", -1, 1, 43, 3, 31.888987))
sketch10.addConstraint(Sketcher.Constraint("DistanceY", -1, 1, 45, 3, 34.663106))
sketch10.addConstraint(Sketcher.Constraint("DistanceX", 46, 3, -1, 1, 0.144168))
sketch10.addConstraint(Sketcher.Constraint("DistanceY", -1, 1, 46, 3, 34.999703))
sketch10.addConstraint(Sketcher.Constraint("DistanceX", 47, 3, -1, 1, 5.129883))
sketch10.addConstraint(Sketcher.Constraint("DistanceX", 48, 3, -1, 1, 10.010906))
sketch10.addConstraint(Sketcher.Constraint("DistanceY", -1, 1, 48, 3, 33.537766))
sketch10.addConstraint(Sketcher.Constraint("DistanceX", 49, 3, -1, 1, 19.017203))
sketch10.addConstraint(Sketcher.Constraint("DistanceY", -1, 1, 49, 3, 36.886258))
sketch10.addConstraint(Sketcher.Constraint("DistanceX", 50, 3, -1, 1, 24.137446))
sketch10.addConstraint(Sketcher.Constraint("DistanceX", 51, 3, -1, 1, 28.753147))
sketch10.addConstraint(Sketcher.Constraint("DistanceY", -1, 1, 51, 3, 29.925016))
sketch10.addConstraint(Sketcher.Constraint("DistanceX", 52, 3, -1, 1, 32.767824))
sketch10.addConstraint(Sketcher.Constraint("DistanceX", 53, 3, -1, 1, 36.097558))
sketch10.addConstraint(Sketcher.Constraint("DistanceY", -1, 1, 53, 3, 20.474772))
sketch10.addConstraint(Sketcher.Constraint("DistanceY", -1, 1, 55, 3, 9.321546))
sketch10.addConstraint(Sketcher.Constraint("DistanceX", 56, 3, -1, 1, 41.361085))
sketch10.addConstraint(Sketcher.Constraint("DistanceY", -1, 1, 56, 3, 3.392734))
sketch10.addConstraint(Sketcher.Constraint("DistanceX", 57, 3, -1, 1, 41.418034))
sketch10.addConstraint(Sketcher.Constraint("DistanceY", 57, 3, -1, 1, 2.606995))
sketch10.addConstraint(Sketcher.Constraint("DistanceX", 58, 3, -1, 1, 33.245323))
sketch10.addConstraint(Sketcher.Constraint("DistanceY", 58, 3, -1, 1, 24.839454))
sketch10.addConstraint(Sketcher.Constraint("DistanceX", 59, 3, -1, 1, 40.609227))
sketch10.addConstraint(Sketcher.Constraint("DistanceX", 61, 3, -1, 1, 36.479712))
sketch10.addConstraint(Sketcher.Constraint("DistanceY", 62, 3, -1, 1, 29.373823))
sketch10.addConstraint(Sketcher.Constraint("DistanceY", 63, 3, -1, 1, 33.294195))
sketch10.addConstraint(Sketcher.Constraint("DistanceX", 64, 3, -1, 1, 14.687626))
sketch10.addConstraint(Sketcher.Constraint("DistanceY", -1, 1, 64, 3, 31.769067))
sketch10.addConstraint(Sketcher.Constraint("DistanceX", 66, 3, -1, 1, 23.052497))
sketch10.addConstraint(Sketcher.Constraint("DistanceY", -1, 1, 66, 3, 26.335953))
sketch10.addConstraint(Sketcher.Constraint("DistanceX", 67, 3, -1, 1, 26.569936))
sketch10.addConstraint(Sketcher.Constraint("DistanceY", -1, 1, 67, 3, 22.782416))
sketch10.addConstraint(Sketcher.Constraint("DistanceY", -1, 1, 68, 3, 18.763933))
sketch10.addConstraint(Sketcher.Constraint("DistanceX", 69, 3, -1, 1, 31.917366))
sketch10.addConstraint(Sketcher.Constraint("DistanceY", -1, 1, 69, 3, 14.362512))
sketch10.addConstraint(Sketcher.Constraint("DistanceX", 70, 3, -1, 1, 33.638225))
sketch10.addConstraint(Sketcher.Constraint("DistanceX", 71, 3, -1, 1, 34.795217))
sketch10.addConstraint(Sketcher.Constraint("DistanceY", -1, 1, 71, 3, 3.780588))
sketch10.addConstraint(Sketcher.Constraint("DistanceY", 72, 3, -1, 1, 1.216038))
sketch10.addConstraint(Sketcher.Constraint("DistanceX", 73, 3, -1, 1, 34.448665))
sketch10.addConstraint(Sketcher.Constraint("DistanceY", 73, 3, -1, 1, 6.187847))
sketch10.addConstraint(Sketcher.Constraint("DistanceY", 74, 3, -1, 1, 11.033373))
sketch10.addConstraint(Sketcher.Constraint("DistanceX", 75, 3, -1, 1, 31.304325))
sketch10.addConstraint(Sketcher.Constraint("DistanceY", 77, 3, -1, 1, 36.518622))
sketch10.addConstraint(Sketcher.Constraint("DistanceX", 78, 3, -1, 1, 14.241935))
sketch10.addConstraint(Sketcher.Constraint("DistanceY", 78, 3, -1, 1, 38.979704))
sketch10.addConstraint(Sketcher.Constraint("DistanceY", 79, 3, -1, 1, 40.625997))
sketch10.addConstraint(Sketcher.Constraint("DistanceX", 80, 3, -1, 1, 4.023654))
sketch10.addConstraint(Sketcher.Constraint("DistanceY", 80, 3, -1, 1, 41.304482))
sketch10.addConstraint(Sketcher.Constraint("DistanceX", 81, 3, -1, 1, 25.969847))
sketch10.addConstraint(Sketcher.Constraint("DistanceY", 81, 3, -1, 1, 23.464165))
sketch10.addConstraint(Sketcher.Constraint("DistanceY", 82, 3, -1, 1, 26.828915))
sketch10.addConstraint(Sketcher.Constraint("DistanceX", 84, 3, -1, 1, 14.097292))
sketch10.addConstraint(Sketcher.Constraint("DistanceY", 84, 3, -1, 1, 32.035392))
sketch10.addConstraint(Sketcher.Constraint("DistanceY", 85, 3, -1, 1, 33.682063))
sketch10.addConstraint(Sketcher.Constraint("DistanceX", 86, 3, -1, 1, 4.120127))
sketch10.addConstraint(Sketcher.Constraint("DistanceY", 86, 3, -1, 1, 34.756648))
pocket7 = doc.addObject("PartDesign::Pocket", "Pocket006")
body.addObject(pocket7)
pocket7.Profile = sketch10
pocket7.Length = 10
pocket7.Reversed = True

# Sketch on an angled plane
sketch11 = doc.addObject("Sketcher::SketchObject", "Sketch010")
body.addObject(sketch11)
sketch11.Placement = App.Placement(Vector(39.087794, 0, 10.473543), App.Rotation(Vector(0, -1, 0), Vector(-0.25881896, 0, 0.965925849), Vector(-0.965925849, 0, -0.25881896), "ZXY"))
sketch11.addGeometry(Part.Circle(Vector(0, 13, 0), Vector(0, 0, 1), 18), False)
sketch11.addConstraint(Sketcher.Constraint("PointOnObject", 0, 3, -2))
sketch11.addConstraint(Sketcher.Constraint("Diameter", 0, 35.0))
sketch11.addConstraint(Sketcher.Constraint("DistanceY", -1, 1, 0, 3, 13.353143))
pocket8 = doc.addObject("PartDesign::Pocket", "Pocket007")
body.addObject(pocket8)
pocket8.Profile = sketch11
pocket8.Type = "TwoLengths"
pocket8.Length = 70
pocket8.Length2 = 20

# Sketch on XY plane
sketch12 = doc.addObject("Sketcher::SketchObject", "Sketch011")
body.addObject(sketch12)
sketch12.AttachmentSupport = (doc.XY_Plane, [""])
sketch12.MapMode = "FlatFace"
sketch12.AttachmentOffset = App.Placement(Vector(0, 0, 89), App.Rotation())
sketch12.addGeometry(Part.Circle(Vector(95, 0, 0), Vector(0, 0, 1), 18), False)
sketch12.addConstraint(Sketcher.Constraint("PointOnObject", 0, 3, -1))
sketch12.addConstraint(Sketcher.Constraint("Diameter", 0, 35.0))
sketch12.addConstraint(Sketcher.Constraint("DistanceX", -1, 1, 0, 3, 95.0))
pocket9 = doc.addObject("PartDesign::Pocket", "Pocket008")
body.addObject(pocket9)
pocket9.Profile = sketch12
pocket9.Length = 55
doc.recompute()

chamfer = doc.addObject("PartDesign::Chamfer", "Chamfer")
body.addObject(chamfer)
chamfer.Base = (pocket9, edges_at(pocket9, [(107.058, -24.75, 38.856)]))
chamfer.Size = 2
doc.recompute()

chamfer2 = doc.addObject("PartDesign::Chamfer", "Chamfer001")
body.addObject(chamfer2)
chamfer2.Base = (chamfer, edges_at(chamfer, [(108.196, 23.71, 34.609), (104.98, 24.592, 46.612)]))
chamfer2.Size = 2
doc.recompute()

chamfer3 = doc.addObject("PartDesign::Chamfer", "Chamfer002")
body.addObject(chamfer3)
chamfer3.Base = (chamfer2, edges_at(chamfer2, [(105.862, 22.517, 19), (105.862, -22.517, 19)]))
chamfer3.Size = 3
doc.recompute()

chamfer4 = doc.addObject("PartDesign::Chamfer", "Chamfer003")
body.addObject(chamfer4)
chamfer4.Base = (chamfer3, edges_at(chamfer3, [(105.253, 0, 34)]))
chamfer4.Size = 3

doc.recompute()
